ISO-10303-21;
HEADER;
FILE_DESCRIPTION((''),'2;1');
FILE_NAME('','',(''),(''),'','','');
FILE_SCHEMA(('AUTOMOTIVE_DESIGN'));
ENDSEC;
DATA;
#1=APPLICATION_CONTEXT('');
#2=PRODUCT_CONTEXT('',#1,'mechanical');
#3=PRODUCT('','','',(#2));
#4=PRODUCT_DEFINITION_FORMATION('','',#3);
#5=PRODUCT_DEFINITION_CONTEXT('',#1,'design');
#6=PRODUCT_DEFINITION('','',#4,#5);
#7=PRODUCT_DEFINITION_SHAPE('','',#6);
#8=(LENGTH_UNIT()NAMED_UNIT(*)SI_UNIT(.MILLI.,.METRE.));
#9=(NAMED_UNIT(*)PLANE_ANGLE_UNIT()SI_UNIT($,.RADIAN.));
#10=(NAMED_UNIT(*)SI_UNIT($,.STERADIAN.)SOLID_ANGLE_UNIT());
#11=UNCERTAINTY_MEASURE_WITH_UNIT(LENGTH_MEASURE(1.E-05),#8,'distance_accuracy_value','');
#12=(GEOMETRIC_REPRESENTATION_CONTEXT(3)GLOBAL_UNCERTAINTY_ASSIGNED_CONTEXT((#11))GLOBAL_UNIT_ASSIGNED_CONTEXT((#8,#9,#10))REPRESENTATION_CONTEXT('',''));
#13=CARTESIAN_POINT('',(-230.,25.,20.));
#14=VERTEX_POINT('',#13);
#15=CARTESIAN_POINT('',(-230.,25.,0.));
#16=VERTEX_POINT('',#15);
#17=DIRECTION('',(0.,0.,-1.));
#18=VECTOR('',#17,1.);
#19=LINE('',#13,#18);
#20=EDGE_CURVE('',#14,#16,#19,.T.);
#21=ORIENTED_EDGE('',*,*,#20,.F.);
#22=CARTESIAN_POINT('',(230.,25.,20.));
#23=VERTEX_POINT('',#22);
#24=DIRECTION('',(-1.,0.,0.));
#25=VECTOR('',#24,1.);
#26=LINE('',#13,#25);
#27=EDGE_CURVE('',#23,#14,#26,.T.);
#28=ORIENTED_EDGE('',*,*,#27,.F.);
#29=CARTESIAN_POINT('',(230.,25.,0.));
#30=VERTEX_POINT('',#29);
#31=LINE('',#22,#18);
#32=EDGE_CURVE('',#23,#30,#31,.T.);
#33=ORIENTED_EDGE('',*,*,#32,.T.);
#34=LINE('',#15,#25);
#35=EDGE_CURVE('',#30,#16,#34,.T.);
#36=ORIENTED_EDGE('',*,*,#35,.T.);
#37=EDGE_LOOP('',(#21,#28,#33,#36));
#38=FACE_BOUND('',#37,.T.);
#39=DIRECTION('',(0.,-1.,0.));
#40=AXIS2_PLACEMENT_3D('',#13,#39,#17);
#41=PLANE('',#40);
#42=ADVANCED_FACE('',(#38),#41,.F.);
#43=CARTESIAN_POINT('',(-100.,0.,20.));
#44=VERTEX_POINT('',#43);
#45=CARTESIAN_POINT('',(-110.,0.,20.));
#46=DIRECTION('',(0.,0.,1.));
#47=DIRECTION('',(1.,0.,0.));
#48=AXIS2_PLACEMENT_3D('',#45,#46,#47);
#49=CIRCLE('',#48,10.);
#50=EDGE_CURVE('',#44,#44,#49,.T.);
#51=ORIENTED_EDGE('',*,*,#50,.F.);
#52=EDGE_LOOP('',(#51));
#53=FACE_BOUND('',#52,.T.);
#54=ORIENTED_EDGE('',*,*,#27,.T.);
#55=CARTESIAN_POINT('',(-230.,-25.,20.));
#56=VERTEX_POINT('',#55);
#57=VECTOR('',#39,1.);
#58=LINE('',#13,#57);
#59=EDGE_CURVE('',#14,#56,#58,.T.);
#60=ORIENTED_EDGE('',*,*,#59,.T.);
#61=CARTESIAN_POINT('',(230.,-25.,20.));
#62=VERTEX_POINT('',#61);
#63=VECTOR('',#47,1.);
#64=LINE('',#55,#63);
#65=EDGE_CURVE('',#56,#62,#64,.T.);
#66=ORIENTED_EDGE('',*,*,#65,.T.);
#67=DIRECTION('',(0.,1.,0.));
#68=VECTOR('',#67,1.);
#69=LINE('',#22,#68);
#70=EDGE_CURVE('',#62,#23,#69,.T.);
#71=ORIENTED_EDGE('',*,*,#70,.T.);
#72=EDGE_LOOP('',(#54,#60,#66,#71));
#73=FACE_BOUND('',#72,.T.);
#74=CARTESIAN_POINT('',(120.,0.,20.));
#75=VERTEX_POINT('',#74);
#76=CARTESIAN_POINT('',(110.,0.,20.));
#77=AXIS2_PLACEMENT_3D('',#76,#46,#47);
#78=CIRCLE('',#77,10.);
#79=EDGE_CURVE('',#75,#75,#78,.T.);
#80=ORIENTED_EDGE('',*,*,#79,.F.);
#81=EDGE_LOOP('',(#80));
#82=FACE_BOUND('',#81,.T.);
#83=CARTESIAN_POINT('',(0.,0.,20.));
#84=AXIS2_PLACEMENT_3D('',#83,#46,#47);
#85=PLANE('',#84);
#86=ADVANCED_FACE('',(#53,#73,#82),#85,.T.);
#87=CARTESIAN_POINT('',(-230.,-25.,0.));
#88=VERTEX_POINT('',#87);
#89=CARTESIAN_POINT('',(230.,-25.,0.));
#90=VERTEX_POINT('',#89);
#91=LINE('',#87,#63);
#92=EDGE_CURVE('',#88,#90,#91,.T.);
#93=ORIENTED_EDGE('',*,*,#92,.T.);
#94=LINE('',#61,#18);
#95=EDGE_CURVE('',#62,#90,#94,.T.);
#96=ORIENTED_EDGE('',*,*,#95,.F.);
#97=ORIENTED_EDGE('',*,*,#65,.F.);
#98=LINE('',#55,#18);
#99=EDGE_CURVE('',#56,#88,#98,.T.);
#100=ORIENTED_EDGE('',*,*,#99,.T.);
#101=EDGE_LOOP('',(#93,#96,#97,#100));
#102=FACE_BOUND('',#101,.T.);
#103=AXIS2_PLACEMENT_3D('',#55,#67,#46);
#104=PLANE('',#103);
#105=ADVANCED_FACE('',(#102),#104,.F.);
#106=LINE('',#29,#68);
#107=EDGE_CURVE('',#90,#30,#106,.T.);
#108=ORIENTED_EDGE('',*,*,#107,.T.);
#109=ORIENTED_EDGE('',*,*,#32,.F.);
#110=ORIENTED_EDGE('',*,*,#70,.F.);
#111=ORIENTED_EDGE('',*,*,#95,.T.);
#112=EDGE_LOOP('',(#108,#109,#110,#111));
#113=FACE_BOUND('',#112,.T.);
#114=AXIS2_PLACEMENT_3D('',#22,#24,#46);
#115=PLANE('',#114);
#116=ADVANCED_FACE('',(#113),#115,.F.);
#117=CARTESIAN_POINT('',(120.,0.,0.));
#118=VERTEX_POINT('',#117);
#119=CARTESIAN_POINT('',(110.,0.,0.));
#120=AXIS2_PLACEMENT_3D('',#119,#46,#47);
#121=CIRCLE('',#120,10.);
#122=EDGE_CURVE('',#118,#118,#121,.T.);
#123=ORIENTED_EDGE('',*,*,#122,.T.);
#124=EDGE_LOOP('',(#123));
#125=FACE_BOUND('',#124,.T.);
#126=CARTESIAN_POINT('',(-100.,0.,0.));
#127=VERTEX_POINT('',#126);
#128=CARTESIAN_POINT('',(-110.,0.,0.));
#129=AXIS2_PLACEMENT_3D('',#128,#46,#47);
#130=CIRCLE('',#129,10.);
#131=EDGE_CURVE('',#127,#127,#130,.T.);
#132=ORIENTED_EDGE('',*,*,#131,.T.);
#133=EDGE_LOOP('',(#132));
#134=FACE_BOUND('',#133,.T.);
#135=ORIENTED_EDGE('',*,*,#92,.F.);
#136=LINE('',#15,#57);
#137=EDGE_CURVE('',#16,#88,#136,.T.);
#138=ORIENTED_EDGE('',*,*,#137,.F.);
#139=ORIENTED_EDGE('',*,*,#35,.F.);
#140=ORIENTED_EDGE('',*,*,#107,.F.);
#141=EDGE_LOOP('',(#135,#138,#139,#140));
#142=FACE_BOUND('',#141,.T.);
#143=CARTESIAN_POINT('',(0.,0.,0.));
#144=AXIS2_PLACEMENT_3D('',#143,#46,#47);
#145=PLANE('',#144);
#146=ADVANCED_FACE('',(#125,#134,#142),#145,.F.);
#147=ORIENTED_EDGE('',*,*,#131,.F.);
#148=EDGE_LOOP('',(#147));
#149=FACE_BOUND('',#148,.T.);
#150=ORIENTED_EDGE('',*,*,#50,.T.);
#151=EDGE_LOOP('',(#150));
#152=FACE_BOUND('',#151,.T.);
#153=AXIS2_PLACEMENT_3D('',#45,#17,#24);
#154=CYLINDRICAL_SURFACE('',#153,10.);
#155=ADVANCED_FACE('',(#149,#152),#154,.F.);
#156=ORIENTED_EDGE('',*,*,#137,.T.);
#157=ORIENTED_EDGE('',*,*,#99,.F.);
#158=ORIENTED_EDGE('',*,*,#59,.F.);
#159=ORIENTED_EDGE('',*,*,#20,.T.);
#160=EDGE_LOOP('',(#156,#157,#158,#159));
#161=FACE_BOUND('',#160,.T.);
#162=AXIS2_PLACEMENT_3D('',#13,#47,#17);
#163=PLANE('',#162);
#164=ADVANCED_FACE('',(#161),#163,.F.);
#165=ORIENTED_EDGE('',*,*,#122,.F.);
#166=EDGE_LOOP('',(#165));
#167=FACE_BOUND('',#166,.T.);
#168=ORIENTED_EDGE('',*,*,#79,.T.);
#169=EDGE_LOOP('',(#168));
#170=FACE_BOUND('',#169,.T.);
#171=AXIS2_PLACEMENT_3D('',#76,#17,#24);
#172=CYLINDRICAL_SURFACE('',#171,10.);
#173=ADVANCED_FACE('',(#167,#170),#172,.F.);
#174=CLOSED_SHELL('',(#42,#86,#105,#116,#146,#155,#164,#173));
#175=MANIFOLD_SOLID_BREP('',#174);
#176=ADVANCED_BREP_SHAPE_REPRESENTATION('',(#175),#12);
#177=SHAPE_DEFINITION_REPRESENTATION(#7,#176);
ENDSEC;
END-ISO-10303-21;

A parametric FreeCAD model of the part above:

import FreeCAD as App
import Part
import Sketcher

V = App.Vector

doc = App.newDocument("Part")
params = doc.addObject("Spreadsheet::Sheet", "Params")
for row, (alias, value) in enumerate([
    ("sketch1_diameter", "20 mm"),
    ("sketch1_width", "460 mm"),
    ("sketch1_height", "50 mm"),
    ("pad1_length", "20 mm"),
], start=1):
    params.set(f"A{row}", alias)
    params.set(f"B{row}", "=" + value)
    params.setAlias(f"B{row}", alias)

body = doc.addObject("PartDesign::Body", "Body")

sketch1 = doc.addObject("Sketcher::SketchObject", "Sketch")
body.addObject(sketch1)
sketch1.AttachmentSupport = (doc.XY_Plane, [""])
sketch1.MapMode = "FlatFace"
sketch1.addGeometry([
    Part.LineSegment(V(-230, 25, 0), V(-230, -25, 0)),
    Part.LineSegment(V(-230, -25, 0), V(230, -25, 0)),
    Part.LineSegment(V(230, -25, 0), V(230, 25, 0)),
    Part.LineSegment(V(230, 25, 0), V(-230, 25, 0)),
    Part.Circle(V(-110, 0, 0), V(0, 0, 1), 10),
    Part.Circle(V(110, 0, 0), V(0, 0, 1), 10),
], False)
sketch1.addConstraint([
    Sketcher.Constraint("Coincident", 0, 2, 1, 1),
    Sketcher.Constraint("Coincident", 1, 2, 2, 1),
    Sketcher.Constraint("Coincident", 2, 2, 3, 1),
    Sketcher.Constraint("Coincident", 3, 2, 0, 1),
    Sketcher.Constraint("Vertical", 0),
    Sketcher.Constraint("Horizontal", 1),
    Sketcher.Constraint("Vertical", 2),
    Sketcher.Constraint("Horizontal", 3),
    Sketcher.Constraint("Equal", 4, 5),
    Sketcher.Constraint("Symmetric", 4, 3, 5, 3, -1, 1),
    Sketcher.Constraint("Symmetric", 0, 2, 2, 2, -1, 1),
    Sketcher.Constraint("PointOnObject", 4, 3, -1),
    Sketcher.Constraint("Diameter", 4, 20.0),
    Sketcher.Constraint("DistanceX", 1, 1, 1, 2, 460.0),
    Sketcher.Constraint("DistanceY", 0, 2, 0, 1, 50.0),
    Sketcher.Constraint("DistanceX", 4, 3, -1, 1, 110.0),
])
sketch1.setExpression("Constraints[12]", "Params.sketch1_diameter")
sketch1.setExpression("Constraints[13]", "Params.sketch1_width")
sketch1.setExpression("Constraints[14]", "Params.sketch1_height")
pad1 = doc.addObject("PartDesign::Pad", "Pad")
body.addObject(pad1)
pad1.Profile = sketch1
pad1.setExpression("Length", "Params.pad1_length")

doc.recompute()
